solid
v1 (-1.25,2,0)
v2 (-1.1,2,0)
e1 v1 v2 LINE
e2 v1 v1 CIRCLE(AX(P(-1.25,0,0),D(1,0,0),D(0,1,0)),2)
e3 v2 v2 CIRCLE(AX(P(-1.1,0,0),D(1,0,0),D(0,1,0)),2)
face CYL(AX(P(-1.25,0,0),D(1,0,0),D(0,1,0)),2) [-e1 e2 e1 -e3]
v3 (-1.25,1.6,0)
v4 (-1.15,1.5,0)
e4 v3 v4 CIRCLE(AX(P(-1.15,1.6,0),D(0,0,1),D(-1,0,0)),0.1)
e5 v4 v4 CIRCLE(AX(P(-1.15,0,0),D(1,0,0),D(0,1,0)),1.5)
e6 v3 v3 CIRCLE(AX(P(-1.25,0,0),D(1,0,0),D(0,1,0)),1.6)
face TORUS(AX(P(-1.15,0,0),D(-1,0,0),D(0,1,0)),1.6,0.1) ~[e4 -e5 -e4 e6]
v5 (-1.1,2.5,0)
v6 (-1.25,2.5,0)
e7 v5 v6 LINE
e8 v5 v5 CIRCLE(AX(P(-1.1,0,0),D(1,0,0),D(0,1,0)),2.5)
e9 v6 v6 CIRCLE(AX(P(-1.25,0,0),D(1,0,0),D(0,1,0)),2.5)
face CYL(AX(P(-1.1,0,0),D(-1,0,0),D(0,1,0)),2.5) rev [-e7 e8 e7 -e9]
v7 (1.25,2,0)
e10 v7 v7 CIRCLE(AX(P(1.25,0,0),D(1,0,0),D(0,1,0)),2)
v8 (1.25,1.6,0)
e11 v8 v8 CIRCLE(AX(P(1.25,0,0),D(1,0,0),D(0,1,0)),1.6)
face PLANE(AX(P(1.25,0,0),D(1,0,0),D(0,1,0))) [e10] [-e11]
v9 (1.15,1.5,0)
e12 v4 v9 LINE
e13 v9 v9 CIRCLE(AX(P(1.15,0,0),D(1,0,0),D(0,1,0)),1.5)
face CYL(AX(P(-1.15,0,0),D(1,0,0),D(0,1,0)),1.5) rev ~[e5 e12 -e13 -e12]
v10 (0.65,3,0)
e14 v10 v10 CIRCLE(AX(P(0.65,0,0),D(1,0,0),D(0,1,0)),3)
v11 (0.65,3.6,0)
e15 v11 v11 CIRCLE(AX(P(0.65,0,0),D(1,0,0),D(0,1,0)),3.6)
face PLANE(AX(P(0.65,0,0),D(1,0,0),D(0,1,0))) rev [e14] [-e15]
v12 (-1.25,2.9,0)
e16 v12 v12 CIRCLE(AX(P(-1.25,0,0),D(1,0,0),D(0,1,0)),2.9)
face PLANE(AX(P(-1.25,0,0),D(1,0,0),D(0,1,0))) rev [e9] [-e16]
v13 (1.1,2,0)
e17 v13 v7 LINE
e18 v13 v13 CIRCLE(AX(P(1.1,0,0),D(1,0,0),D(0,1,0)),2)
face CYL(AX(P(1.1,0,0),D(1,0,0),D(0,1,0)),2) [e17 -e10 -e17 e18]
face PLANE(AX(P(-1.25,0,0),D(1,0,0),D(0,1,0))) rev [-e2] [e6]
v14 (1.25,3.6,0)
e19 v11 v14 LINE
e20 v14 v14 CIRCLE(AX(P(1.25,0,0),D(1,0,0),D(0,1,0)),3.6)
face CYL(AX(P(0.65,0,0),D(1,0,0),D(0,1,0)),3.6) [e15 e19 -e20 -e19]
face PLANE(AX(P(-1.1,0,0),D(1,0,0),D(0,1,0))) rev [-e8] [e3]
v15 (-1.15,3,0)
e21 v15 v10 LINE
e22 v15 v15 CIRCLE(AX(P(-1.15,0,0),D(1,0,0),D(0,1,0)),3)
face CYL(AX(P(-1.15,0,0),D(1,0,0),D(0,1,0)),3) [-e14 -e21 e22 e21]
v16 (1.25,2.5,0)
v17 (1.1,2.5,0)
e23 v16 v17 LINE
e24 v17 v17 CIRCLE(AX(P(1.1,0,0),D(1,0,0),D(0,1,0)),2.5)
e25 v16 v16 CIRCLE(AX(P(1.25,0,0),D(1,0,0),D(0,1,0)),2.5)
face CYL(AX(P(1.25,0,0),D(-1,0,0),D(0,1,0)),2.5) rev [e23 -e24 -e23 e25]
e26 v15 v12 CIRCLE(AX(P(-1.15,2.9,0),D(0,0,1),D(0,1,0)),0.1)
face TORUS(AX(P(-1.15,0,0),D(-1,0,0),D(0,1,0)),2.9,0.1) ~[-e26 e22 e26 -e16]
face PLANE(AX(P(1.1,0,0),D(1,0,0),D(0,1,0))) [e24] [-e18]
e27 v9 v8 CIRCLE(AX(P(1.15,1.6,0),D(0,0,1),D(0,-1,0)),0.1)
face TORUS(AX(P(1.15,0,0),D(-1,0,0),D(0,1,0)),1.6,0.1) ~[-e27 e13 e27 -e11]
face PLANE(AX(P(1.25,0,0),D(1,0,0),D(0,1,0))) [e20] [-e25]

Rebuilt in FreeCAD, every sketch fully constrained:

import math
import FreeCAD as App
import Part
import Sketcher
from FreeCAD import Vector
Q = App.Units.Quantity

doc = App.newDocument("Part")
body = doc.addObject("PartDesign::Body", "Body")

# Sketch on XY plane
sketch1 = doc.addObject("Sketcher::SketchObject", "Sketch")
body.addObject(sketch1)
sketch1.AttachmentSupport = (doc.XY_Plane, [""])
sketch1.MapMode = "FlatFace"
sketch1.addGeometry(Part.LineSegment(Vector(-1.25, 0, 0), Vector(1.25, 0, 0)), False)
sketch1.addGeometry(Part.LineSegment(Vector(1.25, 0, 0), Vector(1.25, 2, 0)), False)
sketch1.addGeometry(Part.LineSegment(Vector(1.25, 2, 0), Vector(1.1, 2, 0)), False)
sketch1.addGeometry(Part.LineSegment(Vector(1.1, 2, 0), Vector(1.1, 2.5, 0)), False)
sketch1.addGeometry(Part.LineSegment(Vector(1.1, 2.5, 0), Vector(1.25, 2.5, 0)), False)
sketch1.addGeometry(Part.LineSegment(Vector(1.25, 2.5, 0), Vector(1.25, 3.6, 0)), False)
sketch1.addGeometry(Part.LineSegment(Vector(1.25, 3.6, 0), Vector(0.65, 3.6, 0)), False)
sketch1.addGeometry(Part.LineSegment(Vector(0.65, 3.6, 0), Vector(0.65, 3, 0)), False)
sketch1.addGeometry(Part.LineSegment(Vector(0.65, 3, 0), Vector(-1.15, 3, 0)), False)
sketch1.addGeometry(Part.ArcOfCircle(Part.Circle(Vector(-1.15, 2.9, 0), Vector(0, 0, 1), 0.1), math.radians(90), math.radians(180)), False)
sketch1.addGeometry(Part.LineSegment(Vector(-1.25, 2.9, 0), Vector(-1.25, 2.5, 0)), False)
sketch1.addGeometry(Part.LineSegment(Vector(-1.25, 2.5, 0), Vector(-1.1, 2.5, 0)), False)
sketch1.addGeometry(Part.LineSegment(Vector(-1.1, 2.5, 0), Vector(-1.1, 2, 0)), False)
sketch1.addGeometry(Part.LineSegment(Vector(-1.1, 2, 0), Vector(-1.25, 2, 0)), False)
sketch1.addGeometry(Part.LineSegment(Vector(-1.25, 2, 0), Vector(-1.25, 0, 0)), False)
sketch1.addConstraint(Sketcher.Constraint("Coincident", 0, 2, 1, 1))
sketch1.addConstraint(Sketcher.Constraint("Coincident", 1, 2, 2, 1))
sketch1.addConstraint(Sketcher.Constraint("Coincident", 2, 2, 3, 1))
sketch1.addConstraint(Sketcher.Constraint("Coincident", 3, 2, 4, 1))
sketch1.addConstraint(Sketcher.Constraint("Coincident", 4, 2, 5, 1))
sketch1.addConstraint(Sketcher.Constraint("Coincident", 5, 2, 6, 1))
sketch1.addConstraint(Sketcher.Constraint("Coincident", 6, 2, 7, 1))
sketch1.addConstraint(Sketcher.Constraint("Coincident", 7, 2, 8, 1))
sketch1.addConstraint(Sketcher.Constraint("Tangent", 8, 2, 9, 1))
sketch1.addConstraint(Sketcher.Constraint("Tangent", 9, 2, 10, 1))
sketch1.addConstraint(Sketcher.Constraint("Coincident", 10, 2, 11, 1))
sketch1.addConstraint(Sketcher.Constraint("Coincident", 11, 2, 12, 1))
sketch1.addConstraint(Sketcher.Constraint("Coincident", 12, 2, 13, 1))
sketch1.addConstraint(Sketcher.Constraint("Coincident", 13, 2, 14, 1))
sketch1.addConstraint(Sketcher.Constraint("Coincident", 14, 2, 0, 1))
sketch1.addConstraint(Sketcher.Constraint("Horizontal", 0))
sketch1.addConstraint(Sketcher.Constraint("Vertical", 1))
sketch1.addConstraint(Sketcher.Constraint("Horizontal", 2))
sketch1.addConstraint(Sketcher.Constraint("Vertical", 3))
sketch1.addConstraint(Sketcher.Constraint("Horizontal", 4))
sketch1.addConstraint(Sketcher.Constraint("Vertical", 5))
sketch1.addConstraint(Sketcher.Constraint("Horizontal", 6))
sketch1.addConstraint(Sketcher.Constraint("Vertical", 7))
sketch1.addConstraint(Sketcher.Constraint("Horizontal", 8))
sketch1.addConstraint(Sketcher.Constraint("Vertical", 10))
sketch1.addConstraint(Sketcher.Constraint("Horizontal", 11))
sketch1.addConstraint(Sketcher.Constraint("Vertical", 12))
sketch1.addConstraint(Sketcher.Constraint("Horizontal", 13))
sketch1.addConstraint(Sketcher.Constraint("Vertical", 14))
sketch1.addConstraint(Sketcher.Constraint("Symmetric", 0, 2, 14, 2, -1, 1))
sketch1.addConstraint(Sketcher.Constraint("Symmetric", 4, 2, 10, 2, -2))
sketch1.addConstraint(Sketcher.Constraint("Symmetric", 2, 2, 12, 2, -2))
sketch1.addConstraint(Sketcher.Constraint("Vertical", 1, 2, 4, 2))
sketch1.addConstraint(Sketcher.Constraint("Equal", 6, 7))
sketch1.addConstraint(Sketcher.Constraint("Radius", 9, Q("0.1 mm")))
sketch1.addConstraint(Sketcher.Constraint("DistanceY", 1, 1, 1, 2, Q("2 mm")))
sketch1.addConstraint(Sketcher.Constraint("DistanceX", 0, 1, 0, 2, Q("2.5 mm")))
sketch1.addConstraint(Sketcher.Constraint("DistanceX", 6, 2, 6, 1, Q("0.6 mm")))
sketch1.addConstraint(Sketcher.Constraint("DistanceY", 3, 1, 3, 2, Q("0.5 mm")))
sketch1.addConstraint(Sketcher.Constraint("DistanceY", 5, 1, 5, 2, Q("1.1 mm")))
sketch1.addConstraint(Sketcher.Constraint("DistanceX", 2, 2, 2, 1, Q("0.15 mm")))
revolution = doc.addObject("PartDesign::Revolution", "Revolution")
body.addObject(revolution)
revolution.Profile = sketch1
revolution.ReferenceAxis = (sketch1, ["H_Axis"])
revolution.Angle = 360

# Sketch on XY plane
sketch2 = doc.addObject("Sketcher::SketchObject", "Sketch001")
body.addObject(sketch2)
sketch2.AttachmentSupport = (doc.XY_Plane, [""])
sketch2.MapMode = "FlatFace"
sketch2.addGeometry(Part.LineSegment(Vector(-1.25, 0, 0), Vector(1.25, 0, 0)), False)
sketch2.addGeometry(Part.LineSegment(Vector(1.25, 0, 0), Vector(1.25, 1.6, 0)), False)
sketch2.addGeometry(Part.ArcOfCircle(Part.Circle(Vector(1.15, 1.6, 0), Vector(0, 0, 1), 0.1), math.radians(-90), math.radians(0)), False)
sketch2.addGeometry(Part.LineSegment(Vector(1.15, 1.5, 0), Vector(-1.15, 1.5, 0)), False)
sketch2.addGeometry(Part.ArcOfCircle(Part.Circle(Vector(-1.15, 1.6, 0), Vector(0, 0, 1), 0.1), math.radians(180), math.radians(270)), False)
sketch2.addGeometry(Part.LineSegment(Vector(-1.25, 1.6, 0), Vector(-1.25, 0, 0)), False)
sketch2.addConstraint(Sketcher.Constraint("Coincident", 0, 2, 1, 1))
sketch2.addConstraint(Sketcher.Constraint("Tangent", 1, 2, 2, 2))
sketch2.addConstraint(Sketcher.Constraint("Tangent", 2, 1, 3, 1))
sketch2.addConstraint(Sketcher.Constraint("Tangent", 3, 2, 4, 2))
sketch2.addConstraint(Sketcher.Constraint("Tangent", 4, 1, 5, 1))
sketch2.addConstraint(Sketcher.Constraint("Coincident", 5, 2, 0, 1))
sketch2.addConstraint(Sketcher.Constraint("Horizontal", 0))
sketch2.addConstraint(Sketcher.Constraint("Vertical", 1))
sketch2.addConstraint(Sketcher.Constraint("Horizontal", 3))
sketch2.addConstraint(Sketcher.Constraint("Vertical", 5))
sketch2.addConstraint(Sketcher.Constraint("Equal", 2, 4))
sketch2.addConstraint(Sketcher.Constraint("Symmetric", 0, 2, 5, 2, -1, 1))
sketch2.addConstraint(Sketcher.Constraint("Radius", 2, Q("0.1 mm")))
sketch2.addConstraint(Sketcher.Constraint("DistanceX", 0, 1, 0, 2, Q("2.5 mm")))
sketch2.addConstraint(Sketcher.Constraint("DistanceY", 1, 1, 1, 2, Q("1.6 mm")))
groove = doc.addObject("PartDesign::Groove", "Groove")
body.addObject(groove)
groove.Profile = sketch2
groove.ReferenceAxis = (sketch2, ["H_Axis"])
groove.Angle = 360

doc.recompute()
